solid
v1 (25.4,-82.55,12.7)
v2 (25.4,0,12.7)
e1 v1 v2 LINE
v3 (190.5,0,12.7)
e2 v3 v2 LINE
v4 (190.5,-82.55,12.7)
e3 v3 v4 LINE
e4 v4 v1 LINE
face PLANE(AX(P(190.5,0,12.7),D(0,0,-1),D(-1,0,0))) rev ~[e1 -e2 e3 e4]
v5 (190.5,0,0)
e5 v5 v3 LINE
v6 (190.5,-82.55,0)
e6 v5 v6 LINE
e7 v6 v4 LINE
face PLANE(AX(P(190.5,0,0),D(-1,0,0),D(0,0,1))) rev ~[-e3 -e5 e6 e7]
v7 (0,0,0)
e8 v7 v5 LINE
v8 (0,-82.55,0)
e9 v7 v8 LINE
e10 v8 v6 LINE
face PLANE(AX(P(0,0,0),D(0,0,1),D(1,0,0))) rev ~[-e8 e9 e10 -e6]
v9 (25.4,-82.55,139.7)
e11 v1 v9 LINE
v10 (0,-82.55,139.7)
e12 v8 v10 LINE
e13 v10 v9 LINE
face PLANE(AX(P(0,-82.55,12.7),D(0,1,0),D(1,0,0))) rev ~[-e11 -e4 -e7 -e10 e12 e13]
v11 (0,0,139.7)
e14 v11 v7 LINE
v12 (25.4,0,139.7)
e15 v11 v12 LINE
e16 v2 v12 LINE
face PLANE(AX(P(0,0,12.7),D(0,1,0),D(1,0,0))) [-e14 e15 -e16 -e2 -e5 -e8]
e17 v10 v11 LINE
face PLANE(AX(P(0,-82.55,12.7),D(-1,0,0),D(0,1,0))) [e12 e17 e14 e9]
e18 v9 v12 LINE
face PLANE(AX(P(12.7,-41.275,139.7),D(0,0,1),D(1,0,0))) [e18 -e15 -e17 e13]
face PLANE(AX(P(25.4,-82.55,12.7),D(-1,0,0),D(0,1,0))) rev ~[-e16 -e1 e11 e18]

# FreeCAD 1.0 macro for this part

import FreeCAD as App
import Part
import Sketcher
Q = App.Units.Quantity


def add_polygon(sketch, points):
    """Adds a closed chain of lines whose ends are joined by coincident constraints."""
    first, n = sketch.GeometryCount, len(points)
    for a, b in zip(points, points[1:] + points[:1]):
        sketch.addGeometry(Part.LineSegment(App.Vector(*a, 0), App.Vector(*b, 0)), False)
    for i in range(n):
        sketch.addConstraint(Sketcher.Constraint("Coincident", first + i, 2, first + (i + 1) % n, 1))

doc = App.newDocument("Part")
params = doc.addObject("Spreadsheet::Sheet", "Params")
for row, (alias, value) in enumerate([
    ("sketch1_width", "7.5 in"),
    ("sketch1_height", "0.5 in"),
    ("pad1_length", "3.25 in"),
    ("sketch2_width", "1 in"),
    ("sketch2_height", "3.25 in"),
    ("pad2_length", "5 in"),
], start=1):
    params.set(f"A{row}", alias)
    params.set(f"B{row}", "=" + value)
    params.setAlias(f"B{row}", alias)

body = doc.addObject("PartDesign::Body", "Body")

# Sketch on XZ plane
sketch1 = body.newObject("Sketcher::SketchObject", "Sketch")
sketch1.AttachmentSupport = (doc.getObject("XZ_Plane"), [""])
sketch1.MapMode = "FlatFace"
add_polygon(sketch1, [(0, 13), (0, 0), (190, 0), (190, 13)])  # lines 0-3
sketch1.addConstraint(Sketcher.Constraint("Vertical", 0))
sketch1.addConstraint(Sketcher.Constraint("Horizontal", 1))
sketch1.addConstraint(Sketcher.Constraint("Vertical", 2))
sketch1.addConstraint(Sketcher.Constraint("Horizontal", 3))
sketch1.addConstraint(Sketcher.Constraint("Coincident", 0, 2, -1, 1))
sketch1.addConstraint(Sketcher.Constraint("DistanceX", 1, 1, 1, 2, Q("7.5 in")))
sketch1.addConstraint(Sketcher.Constraint("DistanceY", 0, 2, 0, 1, Q("0.5 in")))
sketch1.setExpression("Constraints[9]", "Params.sketch1_width")
sketch1.setExpression("Constraints[10]", "Params.sketch1_height")
pad1 = body.newObject("PartDesign::Pad", "Pad")
pad1.Profile = sketch1
pad1.setExpression("Length", "Params.pad1_length")

# Sketch on XY plane
sketch2 = body.newObject("Sketcher::SketchObject", "Sketch001")
sketch2.AttachmentSupport = (doc.getObject("XY_Plane"), [""])
sketch2.MapMode = "FlatFace"
sketch2.AttachmentOffset = App.Placement(App.Vector(0, 0, 0.5 * 25.4), App.Rotation())
add_polygon(sketch2, [(0, 0), (0, -83), (25, -83), (25, 0)])  # lines 0-3
sketch2.addConstraint(Sketcher.Constraint("Vertical", 0))
sketch2.addConstraint(Sketcher.Constraint("Horizontal", 1))
sketch2.addConstraint(Sketcher.Constraint("Vertical", 2))
sketch2.addConstraint(Sketcher.Constraint("Horizontal", 3))
sketch2.addConstraint(Sketcher.Constraint("Coincident", 3, 2, -1, 1))
sketch2.addConstraint(Sketcher.Constraint("DistanceX", 1, 1, 1, 2, Q("1 in")))
sketch2.addConstraint(Sketcher.Constraint("DistanceY", 0, 2, 0, 1, Q("3.25 in")))
sketch2.setExpression("Constraints[9]", "Params.sketch2_width")
sketch2.setExpression("Constraints[10]", "Params.sketch2_height")
pad2 = body.newObject("PartDesign::Pad", "Pad001")
pad2.Profile = sketch2
pad2.setExpression("Length", "Params.pad2_length")

doc.recompute()
